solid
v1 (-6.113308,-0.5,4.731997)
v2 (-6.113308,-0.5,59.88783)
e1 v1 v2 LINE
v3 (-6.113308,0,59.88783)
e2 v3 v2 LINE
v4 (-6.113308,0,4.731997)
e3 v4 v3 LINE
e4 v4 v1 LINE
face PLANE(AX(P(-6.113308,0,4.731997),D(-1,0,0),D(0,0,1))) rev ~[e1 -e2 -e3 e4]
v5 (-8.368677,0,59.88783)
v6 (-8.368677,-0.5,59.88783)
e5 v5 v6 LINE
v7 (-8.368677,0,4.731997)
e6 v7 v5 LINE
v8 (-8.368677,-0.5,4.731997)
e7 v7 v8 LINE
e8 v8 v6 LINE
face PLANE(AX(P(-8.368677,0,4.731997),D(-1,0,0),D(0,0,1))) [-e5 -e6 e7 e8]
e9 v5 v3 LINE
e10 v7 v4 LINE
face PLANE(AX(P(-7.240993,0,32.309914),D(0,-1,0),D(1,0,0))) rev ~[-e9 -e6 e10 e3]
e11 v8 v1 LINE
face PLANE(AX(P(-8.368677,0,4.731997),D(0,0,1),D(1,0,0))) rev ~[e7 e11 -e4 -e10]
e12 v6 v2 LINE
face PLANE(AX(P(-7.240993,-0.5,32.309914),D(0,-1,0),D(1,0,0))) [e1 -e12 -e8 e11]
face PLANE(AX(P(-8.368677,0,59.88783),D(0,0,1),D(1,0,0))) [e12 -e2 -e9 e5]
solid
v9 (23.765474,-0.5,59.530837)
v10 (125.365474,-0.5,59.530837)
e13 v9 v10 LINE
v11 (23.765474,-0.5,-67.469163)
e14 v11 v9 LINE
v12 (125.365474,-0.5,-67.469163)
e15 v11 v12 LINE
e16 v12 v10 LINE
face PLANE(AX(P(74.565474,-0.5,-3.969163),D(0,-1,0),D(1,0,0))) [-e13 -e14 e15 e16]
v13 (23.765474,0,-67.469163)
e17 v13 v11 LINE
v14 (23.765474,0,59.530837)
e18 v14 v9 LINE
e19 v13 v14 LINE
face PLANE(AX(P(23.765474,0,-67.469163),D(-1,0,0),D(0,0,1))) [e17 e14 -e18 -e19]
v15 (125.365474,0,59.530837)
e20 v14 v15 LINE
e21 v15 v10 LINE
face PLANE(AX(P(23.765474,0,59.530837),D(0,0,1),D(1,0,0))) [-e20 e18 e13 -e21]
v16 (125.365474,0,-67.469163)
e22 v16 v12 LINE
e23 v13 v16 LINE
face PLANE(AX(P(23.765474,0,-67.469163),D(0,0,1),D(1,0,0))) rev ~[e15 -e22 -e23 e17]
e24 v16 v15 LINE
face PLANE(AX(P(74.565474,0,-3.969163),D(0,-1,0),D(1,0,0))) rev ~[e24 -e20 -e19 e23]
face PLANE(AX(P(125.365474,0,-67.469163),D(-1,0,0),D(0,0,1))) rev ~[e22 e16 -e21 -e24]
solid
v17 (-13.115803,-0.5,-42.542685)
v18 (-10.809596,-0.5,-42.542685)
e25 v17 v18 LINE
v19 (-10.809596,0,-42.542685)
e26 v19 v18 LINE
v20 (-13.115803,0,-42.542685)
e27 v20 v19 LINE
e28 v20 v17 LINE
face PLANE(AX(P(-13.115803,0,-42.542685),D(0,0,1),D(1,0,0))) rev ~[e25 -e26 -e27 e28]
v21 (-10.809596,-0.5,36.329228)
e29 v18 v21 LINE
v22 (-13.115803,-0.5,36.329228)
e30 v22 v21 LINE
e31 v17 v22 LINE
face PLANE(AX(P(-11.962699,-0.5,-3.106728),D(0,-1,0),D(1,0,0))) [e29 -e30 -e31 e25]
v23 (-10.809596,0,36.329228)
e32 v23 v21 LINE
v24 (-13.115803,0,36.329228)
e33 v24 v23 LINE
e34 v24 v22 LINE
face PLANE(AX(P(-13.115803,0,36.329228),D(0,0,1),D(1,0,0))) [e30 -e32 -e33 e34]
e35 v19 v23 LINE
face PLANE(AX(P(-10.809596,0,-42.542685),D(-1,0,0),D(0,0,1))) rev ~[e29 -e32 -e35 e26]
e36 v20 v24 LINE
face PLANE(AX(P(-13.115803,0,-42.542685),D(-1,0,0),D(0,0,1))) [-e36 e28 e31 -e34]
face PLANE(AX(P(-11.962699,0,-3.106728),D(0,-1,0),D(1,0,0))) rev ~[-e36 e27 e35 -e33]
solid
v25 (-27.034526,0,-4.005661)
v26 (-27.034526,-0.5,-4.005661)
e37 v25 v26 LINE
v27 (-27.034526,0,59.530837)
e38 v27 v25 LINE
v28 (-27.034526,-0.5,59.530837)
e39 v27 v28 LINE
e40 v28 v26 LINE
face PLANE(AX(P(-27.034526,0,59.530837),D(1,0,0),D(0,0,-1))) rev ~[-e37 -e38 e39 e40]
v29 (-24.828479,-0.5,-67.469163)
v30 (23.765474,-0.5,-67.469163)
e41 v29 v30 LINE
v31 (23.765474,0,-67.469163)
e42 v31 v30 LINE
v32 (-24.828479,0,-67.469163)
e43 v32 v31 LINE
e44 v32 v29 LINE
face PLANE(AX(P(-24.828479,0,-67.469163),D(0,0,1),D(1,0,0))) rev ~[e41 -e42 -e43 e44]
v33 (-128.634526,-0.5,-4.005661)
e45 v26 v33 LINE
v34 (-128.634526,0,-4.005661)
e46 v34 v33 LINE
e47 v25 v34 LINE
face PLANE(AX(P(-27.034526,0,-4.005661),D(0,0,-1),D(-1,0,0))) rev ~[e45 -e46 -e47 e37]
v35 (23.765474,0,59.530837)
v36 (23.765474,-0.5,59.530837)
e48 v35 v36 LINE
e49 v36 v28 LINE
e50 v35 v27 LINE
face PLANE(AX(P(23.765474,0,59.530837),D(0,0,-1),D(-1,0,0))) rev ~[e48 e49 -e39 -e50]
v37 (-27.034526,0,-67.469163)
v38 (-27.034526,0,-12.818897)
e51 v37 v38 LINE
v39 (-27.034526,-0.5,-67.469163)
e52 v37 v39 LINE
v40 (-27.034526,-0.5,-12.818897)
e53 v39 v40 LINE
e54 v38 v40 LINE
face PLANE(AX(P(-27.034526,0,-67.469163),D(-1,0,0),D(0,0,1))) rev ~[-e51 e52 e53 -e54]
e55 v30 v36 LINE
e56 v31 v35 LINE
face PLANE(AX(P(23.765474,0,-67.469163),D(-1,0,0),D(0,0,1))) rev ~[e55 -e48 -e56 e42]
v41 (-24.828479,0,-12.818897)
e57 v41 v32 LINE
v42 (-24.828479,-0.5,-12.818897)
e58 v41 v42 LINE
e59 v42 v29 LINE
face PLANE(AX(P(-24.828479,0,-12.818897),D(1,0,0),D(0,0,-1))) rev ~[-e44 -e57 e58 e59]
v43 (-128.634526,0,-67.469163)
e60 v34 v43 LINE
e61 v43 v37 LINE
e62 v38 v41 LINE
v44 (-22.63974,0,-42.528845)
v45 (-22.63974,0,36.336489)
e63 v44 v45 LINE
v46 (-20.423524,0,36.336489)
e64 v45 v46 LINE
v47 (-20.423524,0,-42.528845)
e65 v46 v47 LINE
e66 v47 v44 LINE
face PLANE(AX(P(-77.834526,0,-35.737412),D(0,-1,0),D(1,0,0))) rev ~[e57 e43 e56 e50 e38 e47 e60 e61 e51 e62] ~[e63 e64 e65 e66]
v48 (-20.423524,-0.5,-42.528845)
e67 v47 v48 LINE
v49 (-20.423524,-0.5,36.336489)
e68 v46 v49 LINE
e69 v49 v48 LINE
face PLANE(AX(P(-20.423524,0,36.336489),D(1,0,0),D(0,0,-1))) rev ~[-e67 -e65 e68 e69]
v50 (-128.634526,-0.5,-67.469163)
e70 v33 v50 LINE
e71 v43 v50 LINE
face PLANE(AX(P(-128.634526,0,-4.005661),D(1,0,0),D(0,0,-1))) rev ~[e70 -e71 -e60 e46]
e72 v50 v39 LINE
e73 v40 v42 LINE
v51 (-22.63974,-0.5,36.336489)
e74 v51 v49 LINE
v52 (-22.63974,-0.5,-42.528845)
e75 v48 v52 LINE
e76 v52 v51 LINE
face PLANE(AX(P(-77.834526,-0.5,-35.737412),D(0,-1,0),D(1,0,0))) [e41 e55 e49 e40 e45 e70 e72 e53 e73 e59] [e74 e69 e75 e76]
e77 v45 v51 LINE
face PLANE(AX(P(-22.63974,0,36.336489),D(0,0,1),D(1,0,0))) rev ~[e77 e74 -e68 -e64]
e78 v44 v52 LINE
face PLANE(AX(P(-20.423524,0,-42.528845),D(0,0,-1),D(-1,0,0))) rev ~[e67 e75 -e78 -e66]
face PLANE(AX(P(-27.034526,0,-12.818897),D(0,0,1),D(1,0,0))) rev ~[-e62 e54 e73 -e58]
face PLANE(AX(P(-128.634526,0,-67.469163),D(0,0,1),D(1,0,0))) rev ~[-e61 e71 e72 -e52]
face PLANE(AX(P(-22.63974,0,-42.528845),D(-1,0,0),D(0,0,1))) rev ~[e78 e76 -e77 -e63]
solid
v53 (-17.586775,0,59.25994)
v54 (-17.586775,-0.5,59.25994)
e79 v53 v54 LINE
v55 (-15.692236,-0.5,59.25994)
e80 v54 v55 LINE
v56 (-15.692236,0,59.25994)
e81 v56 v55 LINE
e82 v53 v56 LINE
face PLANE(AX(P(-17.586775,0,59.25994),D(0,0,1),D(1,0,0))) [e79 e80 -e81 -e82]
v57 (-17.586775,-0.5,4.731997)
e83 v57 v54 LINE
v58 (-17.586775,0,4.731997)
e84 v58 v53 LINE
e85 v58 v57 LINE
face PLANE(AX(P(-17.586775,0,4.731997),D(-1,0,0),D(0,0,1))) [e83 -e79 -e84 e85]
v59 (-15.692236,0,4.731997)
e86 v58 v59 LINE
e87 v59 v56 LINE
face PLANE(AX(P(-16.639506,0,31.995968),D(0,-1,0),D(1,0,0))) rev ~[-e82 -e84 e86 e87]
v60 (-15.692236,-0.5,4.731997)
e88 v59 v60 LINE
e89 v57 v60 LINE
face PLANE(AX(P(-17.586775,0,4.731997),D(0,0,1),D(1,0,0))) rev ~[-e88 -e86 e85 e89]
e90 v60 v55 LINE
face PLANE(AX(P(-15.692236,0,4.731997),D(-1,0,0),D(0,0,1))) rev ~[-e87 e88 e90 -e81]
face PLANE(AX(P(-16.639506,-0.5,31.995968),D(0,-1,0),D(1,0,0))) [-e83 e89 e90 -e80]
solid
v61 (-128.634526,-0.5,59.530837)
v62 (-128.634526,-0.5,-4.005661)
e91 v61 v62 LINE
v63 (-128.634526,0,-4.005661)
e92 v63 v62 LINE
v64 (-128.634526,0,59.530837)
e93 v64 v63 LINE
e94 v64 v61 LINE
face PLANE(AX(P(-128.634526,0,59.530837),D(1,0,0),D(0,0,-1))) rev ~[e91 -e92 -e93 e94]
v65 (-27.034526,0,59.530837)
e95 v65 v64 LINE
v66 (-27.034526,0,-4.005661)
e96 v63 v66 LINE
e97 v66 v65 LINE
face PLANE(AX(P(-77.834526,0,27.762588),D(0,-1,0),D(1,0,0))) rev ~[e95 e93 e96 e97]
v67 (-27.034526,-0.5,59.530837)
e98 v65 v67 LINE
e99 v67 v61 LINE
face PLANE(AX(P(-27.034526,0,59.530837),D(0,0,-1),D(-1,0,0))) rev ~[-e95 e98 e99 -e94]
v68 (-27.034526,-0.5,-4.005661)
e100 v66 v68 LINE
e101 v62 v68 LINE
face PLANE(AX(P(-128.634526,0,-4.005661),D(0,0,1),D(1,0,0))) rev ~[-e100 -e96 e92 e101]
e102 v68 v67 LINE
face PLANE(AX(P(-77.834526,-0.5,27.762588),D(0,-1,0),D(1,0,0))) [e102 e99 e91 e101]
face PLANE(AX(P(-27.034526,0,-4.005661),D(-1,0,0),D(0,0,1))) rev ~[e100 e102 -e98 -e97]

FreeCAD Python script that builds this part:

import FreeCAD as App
import Part
import Sketcher

V = App.Vector
Q = App.Units.Quantity


def add_polygon(sketch, points):
    """Adds a closed chain of lines whose ends are joined by coincident constraints."""
    first, n = sketch.GeometryCount, len(points)
    for a, b in zip(points, points[1:] + points[:1]):
        sketch.addGeometry(Part.LineSegment(App.Vector(*a, 0), App.Vector(*b, 0)), False)
    for i in range(n):
        sketch.addConstraint(Sketcher.Constraint("Coincident", first + i, 2, first + (i + 1) % n, 1))

doc = App.newDocument("Part")
params = doc.addObject("Spreadsheet::Sheet", "Params")
for row, (alias, value) in enumerate([
    ("sketch1_width", "4 in"),
    ("pad1_length", "0.5 mm"),
    ("sketch2_width", "4 in"),
    ("sketch2_width2", "2 in"),
    ("sketch2_height", "5 in"),
    ("pad2_length", "0.5 mm"),
    ("sketch3_width", "4 in"),
    ("sketch3_height", "5 in"),
    ("pad3_length", "0.5 mm"),
    ("pad4_length", "0.5 mm"),
    ("pad5_length", "0.5 mm"),
    ("pad6_length", "0.5 mm"),
], start=1):
    params.set(f"A{row}", alias)
    params.set(f"B{row}", "=" + value)
    params.setAlias(f"B{row}", alias)

body = doc.addObject("PartDesign::Body", "Body")

# Sketch on XZ plane
sketch1 = body.newObject("Sketcher::SketchObject", "Sketch")
sketch1.AttachmentSupport = (doc.getObject("XZ_Plane"), [""])
sketch1.MapMode = "FlatFace"
add_polygon(sketch1, [(-27, 60), (-129, 60), (-129, -4), (-27, -4)])  # lines 0-3
sketch1.addConstraint([
    Sketcher.Constraint("Horizontal", 0),
    Sketcher.Constraint("Vertical", 1),
    Sketcher.Constraint("Horizontal", 2),
    Sketcher.Constraint("Vertical", 3),
    Sketcher.Constraint("DistanceX", 0, 2, 0, 1, Q("4 in")),
    Sketcher.Constraint("DistanceY", 1, 2, 1, 1, Q("63.536498 mm")),
    Sketcher.Constraint("DistanceY", 1, 2, -1, 1, Q("4.005661 mm")),
    Sketcher.Constraint("DistanceX", 0, 2, -1, 1, Q("128.634526 mm")),
])
sketch1.setExpression("Constraints[8]", "Params.sketch1_width")
pad1 = body.newObject("PartDesign::Pad", "Pad")
pad1.Profile = sketch1
pad1.setExpression("Length", "Params.pad1_length")
body2 = doc.addObject("PartDesign::Body", "Body001")

# Sketch on XZ plane
sketch2 = body2.newObject("Sketcher::SketchObject", "Sketch001")
sketch2.AttachmentSupport = (doc.getObject("XZ_Plane001"), [""])
sketch2.MapMode = "FlatFace"
add_polygon(sketch2, [(-128.6, -4), (-128.6, -67.5), (-27, -67.5), (-27, -12.8), (-24.8, -12.8), (-24.8, -67.5), (23.8, -67.5), (23.8, 59.5), (-27, 59.5), (-27, -4)])  # lines 0-9
add_polygon(sketch2, [(-20.4, -42.5), (-22.6, -42.5), (-22.6, 36.3), (-20.4, 36.3)])  # lines 10-13
sketch2.addConstraint([
    Sketcher.Constraint("Vertical", 0),
    Sketcher.Constraint("Horizontal", 1),
    Sketcher.Constraint("Vertical", 2),
    Sketcher.Constraint("Horizontal", 3),
    Sketcher.Constraint("Vertical", 4),
    Sketcher.Constraint("Horizontal", 5),
    Sketcher.Constraint("Vertical", 6),
    Sketcher.Constraint("Horizontal", 7),
    Sketcher.Constraint("Vertical", 8),
    Sketcher.Constraint("Horizontal", 9),
    Sketcher.Constraint("Horizontal", 10),
    Sketcher.Constraint("Vertical", 11),
    Sketcher.Constraint("Horizontal", 12),
    Sketcher.Constraint("Vertical", 13),
    Sketcher.Constraint("Horizontal", 1, 2, 4, 2),
    Sketcher.Constraint("Vertical", 2, 2, 7, 2),
    Sketcher.Constraint("DistanceX", 1, 1, 1, 2, Q("4 in")),
    Sketcher.Constraint("DistanceX", 7, 2, 7, 1, Q("2 in")),
    Sketcher.Constraint("DistanceY", 6, 1, 6, 2, Q("5 in")),
    Sketcher.Constraint("DistanceY", 0, 2, 0, 1, Q("63.463502 mm")),
    Sketcher.Constraint("DistanceX", 7, 2, 12, 2, Q("6.611002 mm")),
    Sketcher.Constraint("DistanceX", 3, 1, 3, 2, Q("2.206047 mm")),
    Sketcher.Constraint("DistanceX", 10, 2, 10, 1, Q("2.216216 mm")),
    Sketcher.Constraint("DistanceY", 2, 1, 2, 2, Q("54.650266 mm")),
    Sketcher.Constraint("DistanceY", 11, 1, 11, 2, Q("78.865334 mm")),
    Sketcher.Constraint("DistanceX", 3, 2, -1, 1, Q("24.828479 mm")),
    Sketcher.Constraint("DistanceY", 8, 2, -1, 1, Q("4.005661 mm")),
    Sketcher.Constraint("DistanceY", -1, 1, 11, 2, Q("36.336489 mm")),
])
sketch2.setExpression("Constraints[30]", "Params.sketch2_width")
sketch2.setExpression("Constraints[31]", "Params.sketch2_width2")
sketch2.setExpression("Constraints[32]", "Params.sketch2_height")
pad2 = body2.newObject("PartDesign::Pad", "Pad001")
pad2.Profile = sketch2
pad2.setExpression("Length", "Params.pad2_length")
body3 = doc.addObject("PartDesign::Body", "Body002")

# Sketch on XZ plane
sketch3 = body3.newObject("Sketcher::SketchObject", "Sketch002")
sketch3.AttachmentSupport = (doc.getObject("XZ_Plane002"), [""])
sketch3.MapMode = "FlatFace"
add_polygon(sketch3, [(24, 60), (24, -67), (125, -67), (125, 60)])  # lines 0-3
sketch3.addConstraint([
    Sketcher.Constraint("Vertical", 0),
    Sketcher.Constraint("Horizontal", 1),
    Sketcher.Constraint("Vertical", 2),
    Sketcher.Constraint("Horizontal", 3),
    Sketcher.Constraint("DistanceX", 1, 1, 1, 2, Q("4 in")),
    Sketcher.Constraint("DistanceY", 0, 2, 0, 1, Q("5 in")),
    Sketcher.Constraint("DistanceX", -1, 1, 0, 2, Q("23.765474 mm")),
    Sketcher.Constraint("DistanceY", 0, 2, -1, 1, Q("67.469163 mm")),
])
sketch3.setExpression("Constraints[8]", "Params.sketch3_width")
sketch3.setExpression("Constraints[9]", "Params.sketch3_height")
pad3 = body3.newObject("PartDesign::Pad", "Pad002")
pad3.Profile = sketch3
pad3.setExpression("Length", "Params.pad3_length")
body4 = doc.addObject("PartDesign::Body", "Body003")

# Sketch on XZ plane
sketch4 = body4.newObject("Sketcher::SketchObject", "Sketch003")
sketch4.AttachmentSupport = (doc.getObject("XZ_Plane003"), [""])
sketch4.MapMode = "FlatFace"
add_polygon(sketch4, [(-17.6, 59.3), (-17.6, 4.7), (-15.7, 4.7), (-15.7, 59.3)])  # lines 0-3
sketch4.addConstraint([
    Sketcher.Constraint("Vertical", 0),
    Sketcher.Constraint("Horizontal", 1),
    Sketcher.Constraint("Vertical", 2),
    Sketcher.Constraint("Horizontal", 3),
    Sketcher.Constraint("DistanceX", 1, 1, 1, 2, Q("1.894539 mm")),
    Sketcher.Constraint("DistanceY", 0, 2, 0, 1, Q("54.527943 mm")),
    Sketcher.Constraint("DistanceY", -1, 1, 2, 2, Q("59.25994 mm")),
    Sketcher.Constraint("DistanceX", 0, 2, -1, 1, Q("17.586775 mm")),
])
pad4 = body4.newObject("PartDesign::Pad", "Pad003")
pad4.Profile = sketch4
pad4.setExpression("Length", "Params.pad4_length")
body5 = doc.addObject("PartDesign::Body", "Body004")

# Sketch on XZ plane
sketch5 = body5.newObject("Sketcher::SketchObject", "Sketch004")
sketch5.AttachmentSupport = (doc.getObject("XZ_Plane004"), [""])
sketch5.MapMode = "FlatFace"
add_polygon(sketch5, [(-13.1, 36.3), (-13.1, -42.5), (-10.8, -42.5), (-10.8, 36.3)])  # lines 0-3
sketch5.addConstraint([
    Sketcher.Constraint("Vertical", 0),
    Sketcher.Constraint("Horizontal", 1),
    Sketcher.Constraint("Vertical", 2),
    Sketcher.Constraint("Horizontal", 3),
    Sketcher.Constraint("DistanceX", 1, 1, 1, 2, Q("2.306207 mm")),
    Sketcher.Constraint("DistanceY", 0, 2, 0, 1, Q("78.871913 mm")),
    Sketcher.Constraint("DistanceY", -1, 1, 2, 2, Q("36.329228 mm")),
    Sketcher.Constraint("DistanceX", 0, 2, -1, 1, Q("13.115803 mm")),
])
pad5 = body5.newObject("PartDesign::Pad", "Pad004")
pad5.Profile = sketch5
pad5.setExpression("Length", "Params.pad5_length")
body6 = doc.addObject("PartDesign::Body", "Body005")

# Sketch on XZ plane
sketch6 = body6.newObject("Sketcher::SketchObject", "Sketch005")
sketch6.AttachmentSupport = (doc.getObject("XZ_Plane005"), [""])
sketch6.MapMode = "FlatFace"
add_polygon(sketch6, [(-8.4, 59.9), (-8.4, 4.7), (-6.1, 4.7), (-6.1, 59.9)])  # lines 0-3
sketch6.addConstraint([
    Sketcher.Constraint("Vertical", 0),
    Sketcher.Constraint("Horizontal", 1),
    Sketcher.Constraint("Vertical", 2),
    Sketcher.Constraint("Horizontal", 3),
    Sketcher.Constraint("DistanceX", 1, 1, 1, 2, Q("2.25537 mm")),
    Sketcher.Constraint("DistanceY", 0, 2, 0, 1, Q("55.155833 mm")),
    Sketcher.Constraint("DistanceY", -1, 1, 2, 2, Q("59.88783 mm")),
    Sketcher.Constraint("DistanceX", 0, 2, -1, 1, Q("8.368677 mm")),
])
pad6 = body6.newObject("PartDesign::Pad", "Pad005")
pad6.Profile = sketch6
pad6.setExpression("Length", "Params.pad6_length")

doc.recompute()
